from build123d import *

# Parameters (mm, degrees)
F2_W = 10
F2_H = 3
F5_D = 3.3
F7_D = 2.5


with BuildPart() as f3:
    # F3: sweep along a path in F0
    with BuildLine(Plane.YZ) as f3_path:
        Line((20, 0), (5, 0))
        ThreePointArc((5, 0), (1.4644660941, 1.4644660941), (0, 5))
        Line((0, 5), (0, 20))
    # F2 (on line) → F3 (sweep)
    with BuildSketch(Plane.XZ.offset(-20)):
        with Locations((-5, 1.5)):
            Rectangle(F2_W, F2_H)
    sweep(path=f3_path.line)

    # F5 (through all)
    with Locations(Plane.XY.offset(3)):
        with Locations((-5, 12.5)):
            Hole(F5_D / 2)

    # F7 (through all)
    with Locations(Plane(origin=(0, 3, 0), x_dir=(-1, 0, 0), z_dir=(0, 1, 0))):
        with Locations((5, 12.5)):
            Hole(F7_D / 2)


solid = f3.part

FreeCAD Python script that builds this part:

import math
import FreeCAD as App
import Part
import Sketcher

V = App.Vector

doc = App.newDocument("Part")
body = doc.addObject("PartDesign::Body", "Body")

# Sketch on XZ plane
sketch1 = body.newObject("Sketcher::SketchObject", "Sketch")
sketch1.AttachmentSupport = (doc.getObject("XZ_Plane"), [""])
sketch1.MapMode = "FlatFace"
sketch1.AttachmentOffset = App.Placement(V(0, 0, -20), App.Rotation())
sketch1.addGeometry(Part.LineSegment(V(-10, 3, 0), V(-10, 0, 0)), False)
sketch1.addGeometry(Part.LineSegment(V(-10, 0, 0), V(0, 0, 0)), False)
sketch1.addGeometry(Part.LineSegment(V(0, 0, 0), V(0, 3, 0)), False)
sketch1.addGeometry(Part.LineSegment(V(0, 3, 0), V(-10, 3, 0)), False)
sketch1.addConstraint(Sketcher.Constraint("Coincident", 0, 2, 1, 1))
sketch1.addConstraint(Sketcher.Constraint("Coincident", 1, 2, 2, 1))
sketch1.addConstraint(Sketcher.Constraint("Coincident", 2, 2, 3, 1))
sketch1.addConstraint(Sketcher.Constraint("Coincident", 3, 2, 0, 1))
sketch1.addConstraint(Sketcher.Constraint("Vertical", 0))
sketch1.addConstraint(Sketcher.Constraint("Horizontal", 1))
sketch1.addConstraint(Sketcher.Constraint("Vertical", 2))
sketch1.addConstraint(Sketcher.Constraint("Horizontal", 3))
sketch1.addConstraint(Sketcher.Constraint("Coincident", 1, 2, -1, 1))
sketch1.addConstraint(Sketcher.Constraint("DistanceX", 1, 1, 1, 2, 10.0))
sketch1.addConstraint(Sketcher.Constraint("DistanceY", 0, 2, 0, 1, 3.0))

# Sketch on YZ plane
sketch2 = body.newObject("Sketcher::SketchObject", "Sketch001")
sketch2.AttachmentSupport = (doc.getObject("YZ_Plane"), [""])
sketch2.MapMode = "FlatFace"
sketch2.addGeometry(Part.LineSegment(V(20, 0, 0), V(5, 0, 0)), False)
sketch2.addGeometry(Part.ArcOfCircle(Part.Circle(V(5, 5, 0), V(0, 0, 1), 5), math.radians(180), math.radians(270)), False)
sketch2.addGeometry(Part.LineSegment(V(0, 5, 0), V(0, 20, 0)), False)
sketch2.addConstraint(Sketcher.Constraint("Tangent", 0, 2, 1, 2))
sketch2.addConstraint(Sketcher.Constraint("Tangent", 1, 1, 2, 1))
sketch2.addConstraint(Sketcher.Constraint("Horizontal", 0))
sketch2.addConstraint(Sketcher.Constraint("Vertical", 2))
sketch2.addConstraint(Sketcher.Constraint("PointOnObject", 0, 1, -1))
sketch2.addConstraint(Sketcher.Constraint("PointOnObject", 1, 1, -2))
sketch2.addConstraint(Sketcher.Constraint("Equal", 0, 2))
sketch2.addConstraint(Sketcher.Constraint("Radius", 1, 5.0))
sketch2.addConstraint(Sketcher.Constraint("DistanceX", 0, 2, 0, 1, 15.0))
doc.recompute()

additivepipe = body.newObject("PartDesign::AdditivePipe", "AdditivePipe")
additivepipe.Profile = sketch1
additivepipe.Spine = (sketch2, ["Edge1", "Edge2", "Edge3"])

# Sketch on XY plane
sketch3 = body.newObject("Sketcher::SketchObject", "Sketch002")
sketch3.AttachmentSupport = (doc.getObject("XY_Plane"), [""])
sketch3.MapMode = "FlatFace"
sketch3.AttachmentOffset = App.Placement(V(0, 0, 3), App.Rotation())
sketch3.addGeometry(Part.Circle(V(-5, 12.5, 0), V(0, 0, 1), 1.6), False)
sketch3.addConstraint(Sketcher.Constraint("Diameter", 0, 3.3))
sketch3.addConstraint(Sketcher.Constraint("DistanceX", 0, 3, -1, 1, 5.0))
sketch3.addConstraint(Sketcher.Constraint("DistanceY", -1, 1, 0, 3, 12.5))
doc.recompute()
hole = body.newObject("PartDesign::Hole", "Hole")
hole.Profile = sketch3
hole.ThreadType = "None"
hole.Diameter = 3.3
hole.DepthType = "ThroughAll"

# Sketch on XZ plane
sketch4 = body.newObject("Sketcher::SketchObject", "Sketch003")
sketch4.AttachmentSupport = (doc.getObject("XZ_Plane"), [""])
sketch4.MapMode = "FlatFace"
sketch4.AttachmentOffset = App.Placement(V(0, 0, -3), App.Rotation())
sketch4.addGeometry(Part.Circle(V(-5, 12.5, 0), V(0, 0, 1), 1.2), False)
sketch4.addConstraint(Sketcher.Constraint("Diameter", 0, 2.5))
sketch4.addConstraint(Sketcher.Constraint("DistanceX", 0, 3, -1, 1, 5.0))
sketch4.addConstraint(Sketcher.Constraint("DistanceY", -1, 1, 0, 3, 12.5))
doc.recompute()
hole2 = body.newObject("PartDesign::Hole", "Hole001")
hole2.Profile = sketch4
hole2.ThreadType = "None"
hole2.Diameter = 2.5
hole2.DepthType = "ThroughAll"
hole2.Reversed = True

doc.recompute()
